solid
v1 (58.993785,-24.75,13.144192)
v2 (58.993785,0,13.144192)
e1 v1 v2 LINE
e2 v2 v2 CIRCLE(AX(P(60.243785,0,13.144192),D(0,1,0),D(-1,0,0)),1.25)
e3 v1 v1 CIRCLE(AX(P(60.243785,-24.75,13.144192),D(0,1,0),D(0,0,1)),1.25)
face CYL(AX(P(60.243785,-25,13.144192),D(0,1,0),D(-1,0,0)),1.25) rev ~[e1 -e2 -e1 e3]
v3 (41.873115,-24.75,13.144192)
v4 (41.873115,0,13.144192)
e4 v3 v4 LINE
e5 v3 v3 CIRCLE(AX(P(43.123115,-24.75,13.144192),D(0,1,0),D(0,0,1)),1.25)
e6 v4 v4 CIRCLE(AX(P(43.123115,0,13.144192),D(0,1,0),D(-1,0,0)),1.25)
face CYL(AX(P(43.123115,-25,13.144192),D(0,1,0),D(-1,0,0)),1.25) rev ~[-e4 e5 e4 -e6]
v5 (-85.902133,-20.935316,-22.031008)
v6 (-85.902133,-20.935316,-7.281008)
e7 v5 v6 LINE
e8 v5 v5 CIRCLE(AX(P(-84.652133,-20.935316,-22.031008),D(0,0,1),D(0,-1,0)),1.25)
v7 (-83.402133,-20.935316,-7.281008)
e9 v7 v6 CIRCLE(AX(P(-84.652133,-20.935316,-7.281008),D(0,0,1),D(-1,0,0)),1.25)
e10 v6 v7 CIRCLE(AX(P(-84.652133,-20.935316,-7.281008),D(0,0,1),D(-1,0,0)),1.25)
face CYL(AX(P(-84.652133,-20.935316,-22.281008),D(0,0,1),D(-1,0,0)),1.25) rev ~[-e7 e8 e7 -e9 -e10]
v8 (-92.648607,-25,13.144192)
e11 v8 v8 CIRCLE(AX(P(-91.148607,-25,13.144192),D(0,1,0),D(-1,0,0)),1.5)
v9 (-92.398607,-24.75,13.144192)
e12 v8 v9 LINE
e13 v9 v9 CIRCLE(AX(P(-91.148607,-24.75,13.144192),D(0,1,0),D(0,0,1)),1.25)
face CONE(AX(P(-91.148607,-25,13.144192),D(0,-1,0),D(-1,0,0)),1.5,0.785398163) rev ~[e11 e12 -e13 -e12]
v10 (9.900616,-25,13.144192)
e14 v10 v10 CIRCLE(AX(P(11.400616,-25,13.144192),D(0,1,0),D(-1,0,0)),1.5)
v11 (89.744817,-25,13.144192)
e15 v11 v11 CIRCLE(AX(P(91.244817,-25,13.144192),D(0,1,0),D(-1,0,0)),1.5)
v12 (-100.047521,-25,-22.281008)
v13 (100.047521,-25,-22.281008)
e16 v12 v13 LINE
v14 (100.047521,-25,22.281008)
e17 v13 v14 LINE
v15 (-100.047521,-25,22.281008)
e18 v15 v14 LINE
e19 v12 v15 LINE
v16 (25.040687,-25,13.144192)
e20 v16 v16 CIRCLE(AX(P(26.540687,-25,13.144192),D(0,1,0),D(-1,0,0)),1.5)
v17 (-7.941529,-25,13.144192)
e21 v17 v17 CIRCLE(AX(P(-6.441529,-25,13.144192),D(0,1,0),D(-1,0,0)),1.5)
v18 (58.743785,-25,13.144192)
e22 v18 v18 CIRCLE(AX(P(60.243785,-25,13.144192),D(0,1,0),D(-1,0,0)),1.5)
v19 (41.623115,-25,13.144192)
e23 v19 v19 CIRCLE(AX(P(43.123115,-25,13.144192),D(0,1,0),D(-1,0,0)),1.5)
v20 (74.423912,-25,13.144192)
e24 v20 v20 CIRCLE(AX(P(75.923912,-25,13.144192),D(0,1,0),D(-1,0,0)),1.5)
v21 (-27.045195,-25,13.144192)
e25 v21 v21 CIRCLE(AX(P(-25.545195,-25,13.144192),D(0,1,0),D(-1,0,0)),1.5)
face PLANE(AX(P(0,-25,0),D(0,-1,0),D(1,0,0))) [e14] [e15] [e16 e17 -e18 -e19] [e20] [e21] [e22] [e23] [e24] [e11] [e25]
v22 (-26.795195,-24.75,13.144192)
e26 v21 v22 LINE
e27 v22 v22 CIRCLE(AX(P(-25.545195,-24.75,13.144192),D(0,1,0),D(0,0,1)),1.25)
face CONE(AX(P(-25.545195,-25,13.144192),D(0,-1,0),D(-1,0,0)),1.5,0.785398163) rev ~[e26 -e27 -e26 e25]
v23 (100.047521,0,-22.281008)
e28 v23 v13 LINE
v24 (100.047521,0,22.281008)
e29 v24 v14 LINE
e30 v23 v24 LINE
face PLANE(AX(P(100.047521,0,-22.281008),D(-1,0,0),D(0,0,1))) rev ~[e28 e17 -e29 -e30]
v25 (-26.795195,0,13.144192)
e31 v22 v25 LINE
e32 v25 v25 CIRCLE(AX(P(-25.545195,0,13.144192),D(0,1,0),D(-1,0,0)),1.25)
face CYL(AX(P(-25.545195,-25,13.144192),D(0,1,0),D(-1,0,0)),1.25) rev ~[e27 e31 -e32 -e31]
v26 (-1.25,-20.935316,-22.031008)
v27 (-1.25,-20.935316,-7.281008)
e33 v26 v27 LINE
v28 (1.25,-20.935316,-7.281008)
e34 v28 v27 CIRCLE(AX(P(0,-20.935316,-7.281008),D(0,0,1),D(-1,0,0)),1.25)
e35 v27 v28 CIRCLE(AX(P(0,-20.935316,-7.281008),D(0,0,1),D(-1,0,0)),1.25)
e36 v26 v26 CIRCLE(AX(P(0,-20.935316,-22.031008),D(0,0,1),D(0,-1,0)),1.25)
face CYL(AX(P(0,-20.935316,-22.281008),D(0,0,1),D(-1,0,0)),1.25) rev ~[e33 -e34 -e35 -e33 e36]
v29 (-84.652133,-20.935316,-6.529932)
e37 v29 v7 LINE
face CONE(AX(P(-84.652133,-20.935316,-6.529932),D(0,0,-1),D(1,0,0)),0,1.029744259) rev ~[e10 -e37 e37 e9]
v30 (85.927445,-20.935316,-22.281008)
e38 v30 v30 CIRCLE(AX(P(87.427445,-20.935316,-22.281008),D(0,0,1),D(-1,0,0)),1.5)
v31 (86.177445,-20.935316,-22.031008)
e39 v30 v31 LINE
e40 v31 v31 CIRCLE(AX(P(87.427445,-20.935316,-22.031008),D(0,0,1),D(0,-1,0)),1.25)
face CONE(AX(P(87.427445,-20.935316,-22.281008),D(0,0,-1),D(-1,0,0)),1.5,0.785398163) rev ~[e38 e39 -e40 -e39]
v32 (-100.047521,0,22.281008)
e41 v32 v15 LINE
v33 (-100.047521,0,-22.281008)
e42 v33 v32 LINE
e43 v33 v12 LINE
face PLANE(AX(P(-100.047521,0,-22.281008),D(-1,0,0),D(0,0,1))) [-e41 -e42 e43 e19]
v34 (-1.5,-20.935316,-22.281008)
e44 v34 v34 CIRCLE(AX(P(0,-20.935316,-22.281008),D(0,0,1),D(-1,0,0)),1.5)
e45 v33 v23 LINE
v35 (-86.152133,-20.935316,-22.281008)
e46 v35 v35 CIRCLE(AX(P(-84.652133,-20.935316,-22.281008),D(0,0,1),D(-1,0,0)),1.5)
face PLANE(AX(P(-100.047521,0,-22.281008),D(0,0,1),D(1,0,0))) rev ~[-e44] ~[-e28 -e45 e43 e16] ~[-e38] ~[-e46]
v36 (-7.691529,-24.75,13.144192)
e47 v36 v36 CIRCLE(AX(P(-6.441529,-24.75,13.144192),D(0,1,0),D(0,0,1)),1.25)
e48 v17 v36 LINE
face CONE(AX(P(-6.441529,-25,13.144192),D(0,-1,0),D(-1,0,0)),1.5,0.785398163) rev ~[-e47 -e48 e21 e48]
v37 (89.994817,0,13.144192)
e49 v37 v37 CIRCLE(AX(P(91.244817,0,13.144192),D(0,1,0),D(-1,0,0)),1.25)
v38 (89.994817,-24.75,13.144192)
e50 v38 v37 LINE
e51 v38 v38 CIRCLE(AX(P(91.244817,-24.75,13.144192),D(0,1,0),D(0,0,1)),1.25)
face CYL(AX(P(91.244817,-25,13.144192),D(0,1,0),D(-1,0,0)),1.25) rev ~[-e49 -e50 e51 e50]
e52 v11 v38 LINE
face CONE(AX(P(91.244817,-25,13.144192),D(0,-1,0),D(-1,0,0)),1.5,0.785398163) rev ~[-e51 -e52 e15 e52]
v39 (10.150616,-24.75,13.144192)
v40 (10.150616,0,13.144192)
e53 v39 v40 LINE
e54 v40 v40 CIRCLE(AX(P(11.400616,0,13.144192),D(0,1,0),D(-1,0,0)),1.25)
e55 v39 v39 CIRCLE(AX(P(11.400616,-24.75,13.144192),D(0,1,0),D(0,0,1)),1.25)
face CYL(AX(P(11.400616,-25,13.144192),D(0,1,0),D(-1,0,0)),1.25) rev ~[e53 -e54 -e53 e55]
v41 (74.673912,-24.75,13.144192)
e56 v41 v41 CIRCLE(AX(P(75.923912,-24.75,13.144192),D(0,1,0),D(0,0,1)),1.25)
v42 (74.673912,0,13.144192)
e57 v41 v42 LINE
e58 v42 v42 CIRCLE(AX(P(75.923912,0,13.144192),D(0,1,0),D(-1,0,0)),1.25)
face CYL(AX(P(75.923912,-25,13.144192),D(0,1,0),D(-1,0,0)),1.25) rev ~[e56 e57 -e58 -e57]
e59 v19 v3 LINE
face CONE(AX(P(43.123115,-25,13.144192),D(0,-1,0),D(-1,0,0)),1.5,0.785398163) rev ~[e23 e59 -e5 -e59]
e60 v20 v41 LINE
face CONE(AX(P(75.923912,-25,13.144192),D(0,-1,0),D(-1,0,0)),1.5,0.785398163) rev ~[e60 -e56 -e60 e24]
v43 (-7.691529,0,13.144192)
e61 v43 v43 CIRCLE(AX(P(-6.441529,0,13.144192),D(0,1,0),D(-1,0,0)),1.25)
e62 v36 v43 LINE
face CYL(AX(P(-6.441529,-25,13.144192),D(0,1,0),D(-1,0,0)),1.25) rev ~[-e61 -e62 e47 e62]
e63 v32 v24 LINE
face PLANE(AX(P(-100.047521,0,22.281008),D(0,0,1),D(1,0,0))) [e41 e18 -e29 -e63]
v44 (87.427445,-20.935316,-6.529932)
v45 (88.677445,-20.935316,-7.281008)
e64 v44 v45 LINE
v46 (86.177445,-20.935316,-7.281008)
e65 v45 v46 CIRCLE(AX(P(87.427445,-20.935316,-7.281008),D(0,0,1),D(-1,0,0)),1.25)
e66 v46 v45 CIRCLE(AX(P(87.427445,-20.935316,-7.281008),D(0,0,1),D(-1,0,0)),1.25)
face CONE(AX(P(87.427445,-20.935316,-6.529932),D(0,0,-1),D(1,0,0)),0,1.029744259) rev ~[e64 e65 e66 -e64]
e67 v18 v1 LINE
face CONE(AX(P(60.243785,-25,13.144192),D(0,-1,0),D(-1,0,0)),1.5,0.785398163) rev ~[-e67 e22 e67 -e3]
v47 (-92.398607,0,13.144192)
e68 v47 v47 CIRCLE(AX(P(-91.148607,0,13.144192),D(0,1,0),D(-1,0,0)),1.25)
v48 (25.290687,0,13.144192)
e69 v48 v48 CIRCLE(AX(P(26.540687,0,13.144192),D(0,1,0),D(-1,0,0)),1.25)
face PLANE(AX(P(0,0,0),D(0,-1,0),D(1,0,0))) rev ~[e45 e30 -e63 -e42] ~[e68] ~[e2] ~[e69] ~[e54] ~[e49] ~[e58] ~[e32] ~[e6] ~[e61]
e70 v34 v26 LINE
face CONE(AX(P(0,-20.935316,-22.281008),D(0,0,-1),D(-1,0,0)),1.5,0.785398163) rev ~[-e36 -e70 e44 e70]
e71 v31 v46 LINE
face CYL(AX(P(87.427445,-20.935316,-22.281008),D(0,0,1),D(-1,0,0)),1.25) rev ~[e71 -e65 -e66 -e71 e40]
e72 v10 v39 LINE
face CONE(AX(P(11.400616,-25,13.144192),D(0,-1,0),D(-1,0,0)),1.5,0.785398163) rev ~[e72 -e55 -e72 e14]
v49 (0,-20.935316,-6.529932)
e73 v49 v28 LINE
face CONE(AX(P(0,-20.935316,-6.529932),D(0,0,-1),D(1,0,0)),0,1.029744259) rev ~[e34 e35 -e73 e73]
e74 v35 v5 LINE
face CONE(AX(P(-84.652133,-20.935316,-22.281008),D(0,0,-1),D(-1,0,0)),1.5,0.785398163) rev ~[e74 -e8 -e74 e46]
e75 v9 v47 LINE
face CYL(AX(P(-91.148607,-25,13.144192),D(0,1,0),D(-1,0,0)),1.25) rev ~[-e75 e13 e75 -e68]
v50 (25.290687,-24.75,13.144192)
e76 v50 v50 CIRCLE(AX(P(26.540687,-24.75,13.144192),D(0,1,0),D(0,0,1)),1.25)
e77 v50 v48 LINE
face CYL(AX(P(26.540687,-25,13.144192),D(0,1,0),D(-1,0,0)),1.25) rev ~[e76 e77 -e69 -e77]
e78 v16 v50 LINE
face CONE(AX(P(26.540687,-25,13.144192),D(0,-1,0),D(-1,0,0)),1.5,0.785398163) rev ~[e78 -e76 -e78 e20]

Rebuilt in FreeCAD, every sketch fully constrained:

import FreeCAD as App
import Part
import Sketcher

V = App.Vector
Q = App.Units.Quantity

doc = App.newDocument("Part")
body = doc.addObject("PartDesign::Body", "Body")

# Sketch on XZ plane
sketch1 = body.newObject("Sketcher::SketchObject", "Sketch")
sketch1.AttachmentSupport = (doc.getObject("XZ_Plane"), [""])
sketch1.MapMode = "FlatFace"
sketch1.addGeometry([
    Part.LineSegment(V(-100, 22, 0), V(-100, -22, 0)),
    Part.LineSegment(V(-100, -22, 0), V(100, -22, 0)),
    Part.LineSegment(V(100, -22, 0), V(100, 22, 0)),
    Part.LineSegment(V(100, 22, 0), V(-100, 22, 0)),
], False)
sketch1.addConstraint([
    Sketcher.Constraint("Coincident", 0, 2, 1, 1),
    Sketcher.Constraint("Coincident", 1, 2, 2, 1),
    Sketcher.Constraint("Coincident", 2, 2, 3, 1),
    Sketcher.Constraint("Coincident", 3, 2, 0, 1),
    Sketcher.Constraint("Vertical", 0),
    Sketcher.Constraint("Horizontal", 1),
    Sketcher.Constraint("Vertical", 2),
    Sketcher.Constraint("Horizontal", 3),
    Sketcher.Constraint("Symmetric", 0, 2, 2, 2, -1, 1),
    Sketcher.Constraint("DistanceX", 1, 1, 1, 2, Q("200.095043 mm")),
    Sketcher.Constraint("DistanceY", 0, 2, 0, 1, Q("44.562016 mm")),
])
pad1 = body.newObject("PartDesign::Pad", "Pad")
pad1.Profile = sketch1
pad1.Length = 25

# Sketch on XZ plane
sketch2 = body.newObject("Sketcher::SketchObject", "Sketch001")
sketch2.AttachmentSupport = (doc.getObject("XZ_Plane"), [""])
sketch2.MapMode = "FlatFace"
sketch2.AttachmentOffset = App.Placement(V(0, 0, 25), App.Rotation())
sketch2.addGeometry([
    Part.Circle(V(-91.1, 13.1, 0), V(0, 0, 1), 1.2),  # 0
    Part.Circle(V(-25.5, 13.1, 0), V(0, 0, 1), 1.2),  # 1
    Part.Circle(V(-6.4, 13.1, 0), V(0, 0, 1), 1.2),  # 2
    Part.Circle(V(11.4, 13.1, 0), V(0, 0, 1), 1.2),  # 3
    Part.Circle(V(26.5, 13.1, 0), V(0, 0, 1), 1.2),  # 4
    Part.Circle(V(43.1, 13.1, 0), V(0, 0, 1), 1.2),  # 5
    Part.Circle(V(60.2, 13.1, 0), V(0, 0, 1), 1.2),  # 6
    Part.Circle(V(75.9, 13.1, 0), V(0, 0, 1), 1.2),  # 7
    Part.Circle(V(91.2, 13.1, 0), V(0, 0, 1), 1.2),  # 8
], False)
sketch2.addConstraint([
    Sketcher.Constraint("Equal", 0, 1),
    Sketcher.Constraint("Equal", 1, 2),
    Sketcher.Constraint("Equal", 2, 3),
    Sketcher.Constraint("Equal", 3, 4),
    Sketcher.Constraint("Equal", 4, 5),
    Sketcher.Constraint("Equal", 5, 6),
    Sketcher.Constraint("Equal", 6, 7),
    Sketcher.Constraint("Equal", 7, 8),
    Sketcher.Constraint("Horizontal", 0, 3, 1, 3),
    Sketcher.Constraint("Horizontal", 1, 3, 2, 3),
    Sketcher.Constraint("Horizontal", 2, 3, 3, 3),
    Sketcher.Constraint("Horizontal", 3, 3, 4, 3),
    Sketcher.Constraint("Horizontal", 4, 3, 5, 3),
    Sketcher.Constraint("Horizontal", 5, 3, 6, 3),
    Sketcher.Constraint("Horizontal", 6, 3, 7, 3),
    Sketcher.Constraint("Horizontal", 7, 3, 8, 3),
    Sketcher.Constraint("Diameter", 0, Q("2.5 mm")),
    Sketcher.Constraint("DistanceX", 3, 3, 5, 3, Q("31.722499 mm")),
    Sketcher.Constraint("DistanceX", 4, 3, 6, 3, Q("33.703098 mm")),
    Sketcher.Constraint("DistanceX", 5, 3, 8, 3, Q("48.121702 mm")),
    Sketcher.Constraint("DistanceX", 2, 3, -1, 1, Q("6.441529 mm")),
    Sketcher.Constraint("DistanceX", 0, 3, 2, 3, Q("84.707078 mm")),
    Sketcher.Constraint("DistanceX", 1, 3, 3, 3, Q("36.945811 mm")),
    Sketcher.Constraint("DistanceX", 3, 3, 4, 3, Q("15.140072 mm")),
    Sketcher.Constraint("DistanceX", 2, 3, 7, 3, Q("82.365442 mm")),
    Sketcher.Constraint("DistanceY", -1, 1, 0, 3, Q("13.144192 mm")),
    Sketcher.Constraint("DistanceX", 1, 3, -1, 1, Q("25.545195 mm")),
])
doc.recompute()
hole = body.newObject("PartDesign::Hole", "Hole")
hole.Profile = sketch2
hole.ThreadType = "None"
hole.Diameter = 2.5
hole.DepthType = "ThroughAll"
hole.HoleCutType = "Countersink"
hole.HoleCutDiameter = 3
hole.HoleCutCountersinkAngle = 90

# Sketch on XY plane
sketch3 = body.newObject("Sketcher::SketchObject", "Sketch002")
sketch3.AttachmentSupport = (doc.getObject("XY_Plane"), [""])
sketch3.MapMode = "FlatFace"
sketch3.AttachmentOffset = App.Placement(V(0, 0, -22.281008), App.Rotation())
sketch3.addGeometry([
    Part.Circle(V(87.4, -20.9, 0), V(0, 0, 1), 1.2),
    Part.Circle(V(0, -20.9, 0), V(0, 0, 1), 1.2),
    Part.Circle(V(-84.7, -20.9, 0), V(0, 0, 1), 1.2),
], False)
sketch3.addConstraint([
    Sketcher.Constraint("Equal", 0, 1),
    Sketcher.Constraint("Equal", 1, 2),
    Sketcher.Constraint("PointOnObject", 1, 3, -2),
    Sketcher.Constraint("Horizontal", 0, 3, 1, 3),
    Sketcher.Constraint("Horizontal", 1, 3, 2, 3),
    Sketcher.Constraint("Diameter", 0, Q("2.5 mm")),
    Sketcher.Constraint("DistanceX", 2, 3, 0, 3, Q("172.079578 mm")),
    Sketcher.Constraint("DistanceX", -1, 1, 0, 3, Q("87.427445 mm")),
    Sketcher.Constraint("DistanceY", 0, 3, -1, 1, Q("20.935316 mm")),
])
doc.recompute()
hole2 = body.newObject("PartDesign::Hole", "Hole001")
hole2.Profile = sketch3
hole2.ThreadType = "None"
hole2.Diameter = 2.5
hole2.DepthType = "Dimension"
hole2.Depth = 15
hole2.DrillPoint = "Angled"
hole2.DrillPointAngle = 118
hole2.HoleCutType = "Countersink"
hole2.HoleCutDiameter = 3
hole2.HoleCutCountersinkAngle = 90
hole2.Reversed = True

doc.recompute()
